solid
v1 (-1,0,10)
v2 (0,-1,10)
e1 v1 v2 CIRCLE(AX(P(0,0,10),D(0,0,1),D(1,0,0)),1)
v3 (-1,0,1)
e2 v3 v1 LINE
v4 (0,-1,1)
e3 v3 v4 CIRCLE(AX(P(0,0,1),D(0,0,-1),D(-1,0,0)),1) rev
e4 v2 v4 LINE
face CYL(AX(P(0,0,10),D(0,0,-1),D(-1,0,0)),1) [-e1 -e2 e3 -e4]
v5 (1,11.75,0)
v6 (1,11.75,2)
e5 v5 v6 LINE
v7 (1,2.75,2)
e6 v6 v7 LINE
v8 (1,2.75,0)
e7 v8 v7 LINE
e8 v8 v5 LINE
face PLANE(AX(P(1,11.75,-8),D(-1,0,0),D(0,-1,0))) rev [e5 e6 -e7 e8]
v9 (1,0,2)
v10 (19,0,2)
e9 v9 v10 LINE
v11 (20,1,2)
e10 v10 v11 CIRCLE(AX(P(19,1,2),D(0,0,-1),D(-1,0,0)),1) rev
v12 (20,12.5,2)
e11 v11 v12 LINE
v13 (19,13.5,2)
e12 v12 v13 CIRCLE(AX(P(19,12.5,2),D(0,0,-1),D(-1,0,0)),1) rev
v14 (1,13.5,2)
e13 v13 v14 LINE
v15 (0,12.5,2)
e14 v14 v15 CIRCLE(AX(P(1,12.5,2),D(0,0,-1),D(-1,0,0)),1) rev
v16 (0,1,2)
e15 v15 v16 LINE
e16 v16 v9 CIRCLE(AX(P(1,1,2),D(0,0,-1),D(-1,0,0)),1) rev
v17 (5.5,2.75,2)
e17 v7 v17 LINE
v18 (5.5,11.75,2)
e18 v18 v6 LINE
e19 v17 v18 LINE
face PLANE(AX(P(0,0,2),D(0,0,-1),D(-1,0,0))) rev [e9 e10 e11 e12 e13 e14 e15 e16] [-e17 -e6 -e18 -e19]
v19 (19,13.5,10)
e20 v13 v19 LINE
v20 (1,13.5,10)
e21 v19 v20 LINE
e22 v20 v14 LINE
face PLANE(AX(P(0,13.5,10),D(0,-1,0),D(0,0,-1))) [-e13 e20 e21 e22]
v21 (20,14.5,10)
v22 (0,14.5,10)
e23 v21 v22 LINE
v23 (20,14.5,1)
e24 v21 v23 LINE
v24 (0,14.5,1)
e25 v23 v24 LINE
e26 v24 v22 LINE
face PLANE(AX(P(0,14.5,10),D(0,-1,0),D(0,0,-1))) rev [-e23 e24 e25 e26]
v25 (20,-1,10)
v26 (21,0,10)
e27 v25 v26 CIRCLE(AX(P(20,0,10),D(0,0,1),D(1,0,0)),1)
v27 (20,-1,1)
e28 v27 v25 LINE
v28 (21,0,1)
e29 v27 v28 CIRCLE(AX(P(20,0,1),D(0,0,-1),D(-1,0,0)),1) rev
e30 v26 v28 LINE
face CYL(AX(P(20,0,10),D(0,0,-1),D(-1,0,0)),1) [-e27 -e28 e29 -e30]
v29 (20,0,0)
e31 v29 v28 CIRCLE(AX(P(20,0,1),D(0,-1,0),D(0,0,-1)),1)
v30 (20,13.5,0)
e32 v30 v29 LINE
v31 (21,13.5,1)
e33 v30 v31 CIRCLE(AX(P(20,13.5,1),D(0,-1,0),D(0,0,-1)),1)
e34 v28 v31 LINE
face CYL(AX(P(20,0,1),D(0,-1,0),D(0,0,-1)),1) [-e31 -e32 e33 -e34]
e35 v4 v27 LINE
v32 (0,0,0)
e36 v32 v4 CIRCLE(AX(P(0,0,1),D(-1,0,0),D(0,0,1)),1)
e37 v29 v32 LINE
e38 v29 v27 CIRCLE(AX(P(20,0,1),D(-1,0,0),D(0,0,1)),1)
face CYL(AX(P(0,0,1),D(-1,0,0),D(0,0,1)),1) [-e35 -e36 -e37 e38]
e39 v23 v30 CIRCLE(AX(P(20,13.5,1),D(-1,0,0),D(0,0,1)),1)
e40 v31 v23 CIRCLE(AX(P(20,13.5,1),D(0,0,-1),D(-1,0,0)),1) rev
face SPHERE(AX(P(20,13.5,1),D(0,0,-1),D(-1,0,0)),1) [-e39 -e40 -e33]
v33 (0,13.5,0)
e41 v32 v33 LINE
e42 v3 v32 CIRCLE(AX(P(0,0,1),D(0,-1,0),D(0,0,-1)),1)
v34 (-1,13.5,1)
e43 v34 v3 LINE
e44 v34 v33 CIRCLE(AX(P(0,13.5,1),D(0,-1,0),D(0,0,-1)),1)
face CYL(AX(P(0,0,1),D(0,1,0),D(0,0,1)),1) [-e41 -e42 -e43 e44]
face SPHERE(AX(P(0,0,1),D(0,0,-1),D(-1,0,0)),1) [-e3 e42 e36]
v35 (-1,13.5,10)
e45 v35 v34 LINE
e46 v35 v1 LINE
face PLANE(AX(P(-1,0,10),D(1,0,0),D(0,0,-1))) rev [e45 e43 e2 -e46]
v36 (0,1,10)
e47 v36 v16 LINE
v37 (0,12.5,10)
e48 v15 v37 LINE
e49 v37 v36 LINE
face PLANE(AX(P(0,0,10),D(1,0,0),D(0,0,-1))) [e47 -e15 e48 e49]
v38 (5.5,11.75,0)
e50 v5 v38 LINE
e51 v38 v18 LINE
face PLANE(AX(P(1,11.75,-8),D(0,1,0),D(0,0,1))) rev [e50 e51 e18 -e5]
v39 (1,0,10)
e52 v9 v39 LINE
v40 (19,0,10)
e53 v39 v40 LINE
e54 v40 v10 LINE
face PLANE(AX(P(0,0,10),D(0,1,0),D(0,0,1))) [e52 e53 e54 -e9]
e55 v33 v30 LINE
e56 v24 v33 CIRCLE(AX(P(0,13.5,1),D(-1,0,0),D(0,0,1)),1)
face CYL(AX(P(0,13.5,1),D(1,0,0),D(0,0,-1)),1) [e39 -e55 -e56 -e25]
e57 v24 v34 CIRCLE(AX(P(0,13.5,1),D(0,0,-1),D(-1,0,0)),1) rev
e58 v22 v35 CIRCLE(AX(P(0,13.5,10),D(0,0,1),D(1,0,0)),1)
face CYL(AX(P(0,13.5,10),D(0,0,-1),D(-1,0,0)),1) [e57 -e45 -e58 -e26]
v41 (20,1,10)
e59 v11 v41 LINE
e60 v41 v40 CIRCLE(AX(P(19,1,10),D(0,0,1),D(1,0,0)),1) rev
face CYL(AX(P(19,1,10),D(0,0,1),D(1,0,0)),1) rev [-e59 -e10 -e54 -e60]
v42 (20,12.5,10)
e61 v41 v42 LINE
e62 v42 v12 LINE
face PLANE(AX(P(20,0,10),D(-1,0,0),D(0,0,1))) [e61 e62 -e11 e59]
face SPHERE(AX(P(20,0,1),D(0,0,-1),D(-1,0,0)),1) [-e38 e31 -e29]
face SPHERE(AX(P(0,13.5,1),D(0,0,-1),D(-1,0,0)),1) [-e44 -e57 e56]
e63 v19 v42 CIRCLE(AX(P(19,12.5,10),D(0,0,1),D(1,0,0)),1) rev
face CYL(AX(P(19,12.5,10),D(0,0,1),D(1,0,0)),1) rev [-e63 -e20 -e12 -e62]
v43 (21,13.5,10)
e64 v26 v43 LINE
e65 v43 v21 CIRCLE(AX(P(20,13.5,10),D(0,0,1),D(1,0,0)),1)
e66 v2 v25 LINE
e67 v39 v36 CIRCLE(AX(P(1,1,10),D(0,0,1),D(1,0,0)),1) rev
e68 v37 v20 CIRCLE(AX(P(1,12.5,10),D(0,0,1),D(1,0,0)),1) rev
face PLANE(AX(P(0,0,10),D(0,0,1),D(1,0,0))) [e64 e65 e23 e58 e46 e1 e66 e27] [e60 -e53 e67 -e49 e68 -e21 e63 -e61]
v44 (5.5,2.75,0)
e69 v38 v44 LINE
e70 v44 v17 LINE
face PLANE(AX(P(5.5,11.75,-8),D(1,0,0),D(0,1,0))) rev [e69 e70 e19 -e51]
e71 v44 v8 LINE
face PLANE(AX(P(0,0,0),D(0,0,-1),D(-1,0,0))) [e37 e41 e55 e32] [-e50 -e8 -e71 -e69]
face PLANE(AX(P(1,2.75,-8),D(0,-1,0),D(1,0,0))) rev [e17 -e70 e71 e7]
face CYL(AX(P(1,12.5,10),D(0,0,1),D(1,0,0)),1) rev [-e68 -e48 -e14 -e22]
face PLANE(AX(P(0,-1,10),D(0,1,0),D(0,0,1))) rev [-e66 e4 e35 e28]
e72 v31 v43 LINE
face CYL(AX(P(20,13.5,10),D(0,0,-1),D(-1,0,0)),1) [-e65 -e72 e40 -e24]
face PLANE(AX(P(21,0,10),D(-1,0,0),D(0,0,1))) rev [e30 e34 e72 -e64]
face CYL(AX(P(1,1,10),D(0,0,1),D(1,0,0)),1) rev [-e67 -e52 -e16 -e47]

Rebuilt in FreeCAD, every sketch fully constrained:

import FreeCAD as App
import Part
import Sketcher

V = App.Vector


def edges_at(feature, points):
    """Names of the edges that pass closest to the given points."""
    edges = feature.Shape.Edges
    near = lambda p: min(range(len(edges)), key=lambda i: edges[i].distToShape(Part.Vertex(*p))[0])
    return sorted({f"Edge{near(p) + 1}" for p in points})


def add_polygon(sketch, points):
    """Adds a closed chain of lines whose ends are joined by coincident constraints."""
    first, n = sketch.GeometryCount, len(points)
    for a, b in zip(points, points[1:] + points[:1]):
        sketch.addGeometry(Part.LineSegment(App.Vector(*a, 0), App.Vector(*b, 0)), False)
    for i in range(n):
        sketch.addConstraint(Sketcher.Constraint("Coincident", first + i, 2, first + (i + 1) % n, 1))

doc = App.newDocument("Part")
body = doc.addObject("PartDesign::Body", "Body")

sketch1 = body.newObject("Sketcher::SketchObject", "Sketch")
sketch1.AttachmentSupport = (doc.getObject("XY_Plane"), [""])
sketch1.MapMode = "FlatFace"
add_polygon(sketch1, [(0, 14), (0, 0), (20, 0), (20, 14)])
sketch1.addConstraint(Sketcher.Constraint("Vertical", 0))
sketch1.addConstraint(Sketcher.Constraint("Horizontal", 1))
sketch1.addConstraint(Sketcher.Constraint("Vertical", 2))
sketch1.addConstraint(Sketcher.Constraint("Horizontal", 3))
sketch1.addConstraint(Sketcher.Constraint("Coincident", 0, 2, -1, 1))
sketch1.addConstraint(Sketcher.Constraint("DistanceX", 1, 1, 1, 2, 20.0))
sketch1.addConstraint(Sketcher.Constraint("DistanceY", 0, 2, 0, 1, 13.5))
pad1 = body.newObject("PartDesign::Pad", "Pad")
pad1.Profile = sketch1
pad1.Length = 2

sketch2 = body.newObject("Sketcher::SketchObject", "Sketch001")
sketch2.AttachmentSupport = (doc.getObject("XY_Plane"), [""])
sketch2.MapMode = "FlatFace"
add_polygon(sketch2, [(-1, 14), (-1, -1), (21, -1), (21, 14)])
add_polygon(sketch2, [(20, 0), (0, 0), (0, 14), (20, 14)])
sketch2.addConstraint(Sketcher.Constraint("Vertical", 0))
sketch2.addConstraint(Sketcher.Constraint("Horizontal", 1))
sketch2.addConstraint(Sketcher.Constraint("Vertical", 2))
sketch2.addConstraint(Sketcher.Constraint("Horizontal", 3))
sketch2.addConstraint(Sketcher.Constraint("Horizontal", 4))
sketch2.addConstraint(Sketcher.Constraint("Vertical", 5))
sketch2.addConstraint(Sketcher.Constraint("Horizontal", 6))
sketch2.addConstraint(Sketcher.Constraint("Vertical", 7))
sketch2.addConstraint(Sketcher.Constraint("Coincident", 4, 2, -1, 1))
sketch2.addConstraint(Sketcher.Constraint("DistanceX", 1, 1, 1, 2, 22.0))
sketch2.addConstraint(Sketcher.Constraint("DistanceX", 4, 2, 4, 1, 20.0))
sketch2.addConstraint(Sketcher.Constraint("DistanceY", 0, 2, 0, 1, 15.5))
sketch2.addConstraint(Sketcher.Constraint("DistanceY", 5, 1, 5, 2, 13.5))
sketch2.addConstraint(Sketcher.Constraint("DistanceX", 0, 2, -1, 1, 1.0))
sketch2.addConstraint(Sketcher.Constraint("DistanceY", 0, 2, -1, 1, 1.0))
pad2 = body.newObject("PartDesign::Pad", "Pad001")
pad2.Profile = sketch2
pad2.Length = 10

sketch3 = body.newObject("Sketcher::SketchObject", "Sketch002")
sketch3.AttachmentSupport = (doc.getObject("XY_Plane"), [""])
sketch3.MapMode = "FlatFace"
sketch3.AttachmentOffset = App.Placement(V(0, 0, 2), App.Rotation())
add_polygon(sketch3, [(1, 11.8), (1, 2.8), (5.5, 2.8), (5.5, 11.8)])
sketch3.addConstraint(Sketcher.Constraint("Vertical", 0))
sketch3.addConstraint(Sketcher.Constraint("Horizontal", 1))
sketch3.addConstraint(Sketcher.Constraint("Vertical", 2))
sketch3.addConstraint(Sketcher.Constraint("Horizontal", 3))
sketch3.addConstraint(Sketcher.Constraint("DistanceY", 0, 2, 0, 1, 9.0))
sketch3.addConstraint(Sketcher.Constraint("DistanceX", 1, 1, 1, 2, 4.5))
sketch3.addConstraint(Sketcher.Constraint("DistanceX", -1, 1, 0, 2, 1.0))
sketch3.addConstraint(Sketcher.Constraint("DistanceY", -1, 1, 0, 2, 2.75))
pocket1 = body.newObject("PartDesign::Pocket", "Pocket")
pocket1.Profile = sketch3
pocket1.Length = 10
doc.recompute()

fillet = body.newObject("PartDesign::Fillet", "Fillet")
fillet.Base = (pocket1, edges_at(pocket1, [
    (0, 0, 6),
    (20, 0, 6),
    (20, 13.5, 6),
    (0, 13.5, 6),
    (-1, 14.5, 5),
    (-1, -1, 5),
    (21, -1, 5),
    (21, 14.5, 5),
]))
fillet.Radius = 1
doc.recompute()

fillet2 = body.newObject("PartDesign::Fillet", "Fillet001")
fillet2.Base = (fillet, edges_at(fillet, [
    (10, -1, 0),
    (-1, 6.75, 0),
    (10, 14.5, 0),
    (21, 6.75, 0),
    (20.707, 14.207, 0),
    (20.707, -0.707, 0),
    (-0.707, 14.207, 0),
    (-0.707, -0.707, 0),
]))
fillet2.Radius = 1

doc.recompute()
